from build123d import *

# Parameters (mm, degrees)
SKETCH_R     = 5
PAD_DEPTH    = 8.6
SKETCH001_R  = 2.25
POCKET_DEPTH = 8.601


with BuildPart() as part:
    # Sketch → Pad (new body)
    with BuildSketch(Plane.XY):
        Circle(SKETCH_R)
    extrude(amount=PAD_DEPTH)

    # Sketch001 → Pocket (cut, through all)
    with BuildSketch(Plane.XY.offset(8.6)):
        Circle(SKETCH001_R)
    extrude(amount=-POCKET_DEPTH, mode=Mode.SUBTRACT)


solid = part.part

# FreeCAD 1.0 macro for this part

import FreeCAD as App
import Part
import Sketcher
from FreeCAD import Vector

doc = App.newDocument("Part")
body = doc.addObject("PartDesign::Body", "Body")

sketch1 = body.newObject("Sketcher::SketchObject", "Sketch")
sketch1.AttachmentSupport = (doc.getObject("XY_Plane"), [""])
sketch1.MapMode = "FlatFace"
sketch1.addGeometry(Part.Circle(Vector(0, 0, 0), Vector(0, 0, 1), 5), False)
sketch1.addConstraint([
    Sketcher.Constraint("Coincident", 0, 3, -1, 1),
    Sketcher.Constraint("Diameter", 0, 10.0),
])
pad1 = body.newObject("PartDesign::Pad", "Pad")
pad1.Profile = sketch1
pad1.Length = 8.6

sketch2 = body.newObject("Sketcher::SketchObject", "Sketch001")
sketch2.AttachmentSupport = (doc.getObject("XY_Plane"), [""])
sketch2.MapMode = "FlatFace"
sketch2.AttachmentOffset = App.Placement(Vector(0, 0, 8.6), App.Rotation())
sketch2.addGeometry(Part.Circle(Vector(0, 0, 0), Vector(0, 0, 1), 2.25), False)
sketch2.addConstraint([
    Sketcher.Constraint("Coincident", 0, 3, -1, 1),
    Sketcher.Constraint("Diameter", 0, 4.5),
])
pocket1 = body.newObject("PartDesign::Pocket", "Pocket")
pocket1.Profile = sketch2
pocket1.Type = "ThroughAll"

doc.recompute()
